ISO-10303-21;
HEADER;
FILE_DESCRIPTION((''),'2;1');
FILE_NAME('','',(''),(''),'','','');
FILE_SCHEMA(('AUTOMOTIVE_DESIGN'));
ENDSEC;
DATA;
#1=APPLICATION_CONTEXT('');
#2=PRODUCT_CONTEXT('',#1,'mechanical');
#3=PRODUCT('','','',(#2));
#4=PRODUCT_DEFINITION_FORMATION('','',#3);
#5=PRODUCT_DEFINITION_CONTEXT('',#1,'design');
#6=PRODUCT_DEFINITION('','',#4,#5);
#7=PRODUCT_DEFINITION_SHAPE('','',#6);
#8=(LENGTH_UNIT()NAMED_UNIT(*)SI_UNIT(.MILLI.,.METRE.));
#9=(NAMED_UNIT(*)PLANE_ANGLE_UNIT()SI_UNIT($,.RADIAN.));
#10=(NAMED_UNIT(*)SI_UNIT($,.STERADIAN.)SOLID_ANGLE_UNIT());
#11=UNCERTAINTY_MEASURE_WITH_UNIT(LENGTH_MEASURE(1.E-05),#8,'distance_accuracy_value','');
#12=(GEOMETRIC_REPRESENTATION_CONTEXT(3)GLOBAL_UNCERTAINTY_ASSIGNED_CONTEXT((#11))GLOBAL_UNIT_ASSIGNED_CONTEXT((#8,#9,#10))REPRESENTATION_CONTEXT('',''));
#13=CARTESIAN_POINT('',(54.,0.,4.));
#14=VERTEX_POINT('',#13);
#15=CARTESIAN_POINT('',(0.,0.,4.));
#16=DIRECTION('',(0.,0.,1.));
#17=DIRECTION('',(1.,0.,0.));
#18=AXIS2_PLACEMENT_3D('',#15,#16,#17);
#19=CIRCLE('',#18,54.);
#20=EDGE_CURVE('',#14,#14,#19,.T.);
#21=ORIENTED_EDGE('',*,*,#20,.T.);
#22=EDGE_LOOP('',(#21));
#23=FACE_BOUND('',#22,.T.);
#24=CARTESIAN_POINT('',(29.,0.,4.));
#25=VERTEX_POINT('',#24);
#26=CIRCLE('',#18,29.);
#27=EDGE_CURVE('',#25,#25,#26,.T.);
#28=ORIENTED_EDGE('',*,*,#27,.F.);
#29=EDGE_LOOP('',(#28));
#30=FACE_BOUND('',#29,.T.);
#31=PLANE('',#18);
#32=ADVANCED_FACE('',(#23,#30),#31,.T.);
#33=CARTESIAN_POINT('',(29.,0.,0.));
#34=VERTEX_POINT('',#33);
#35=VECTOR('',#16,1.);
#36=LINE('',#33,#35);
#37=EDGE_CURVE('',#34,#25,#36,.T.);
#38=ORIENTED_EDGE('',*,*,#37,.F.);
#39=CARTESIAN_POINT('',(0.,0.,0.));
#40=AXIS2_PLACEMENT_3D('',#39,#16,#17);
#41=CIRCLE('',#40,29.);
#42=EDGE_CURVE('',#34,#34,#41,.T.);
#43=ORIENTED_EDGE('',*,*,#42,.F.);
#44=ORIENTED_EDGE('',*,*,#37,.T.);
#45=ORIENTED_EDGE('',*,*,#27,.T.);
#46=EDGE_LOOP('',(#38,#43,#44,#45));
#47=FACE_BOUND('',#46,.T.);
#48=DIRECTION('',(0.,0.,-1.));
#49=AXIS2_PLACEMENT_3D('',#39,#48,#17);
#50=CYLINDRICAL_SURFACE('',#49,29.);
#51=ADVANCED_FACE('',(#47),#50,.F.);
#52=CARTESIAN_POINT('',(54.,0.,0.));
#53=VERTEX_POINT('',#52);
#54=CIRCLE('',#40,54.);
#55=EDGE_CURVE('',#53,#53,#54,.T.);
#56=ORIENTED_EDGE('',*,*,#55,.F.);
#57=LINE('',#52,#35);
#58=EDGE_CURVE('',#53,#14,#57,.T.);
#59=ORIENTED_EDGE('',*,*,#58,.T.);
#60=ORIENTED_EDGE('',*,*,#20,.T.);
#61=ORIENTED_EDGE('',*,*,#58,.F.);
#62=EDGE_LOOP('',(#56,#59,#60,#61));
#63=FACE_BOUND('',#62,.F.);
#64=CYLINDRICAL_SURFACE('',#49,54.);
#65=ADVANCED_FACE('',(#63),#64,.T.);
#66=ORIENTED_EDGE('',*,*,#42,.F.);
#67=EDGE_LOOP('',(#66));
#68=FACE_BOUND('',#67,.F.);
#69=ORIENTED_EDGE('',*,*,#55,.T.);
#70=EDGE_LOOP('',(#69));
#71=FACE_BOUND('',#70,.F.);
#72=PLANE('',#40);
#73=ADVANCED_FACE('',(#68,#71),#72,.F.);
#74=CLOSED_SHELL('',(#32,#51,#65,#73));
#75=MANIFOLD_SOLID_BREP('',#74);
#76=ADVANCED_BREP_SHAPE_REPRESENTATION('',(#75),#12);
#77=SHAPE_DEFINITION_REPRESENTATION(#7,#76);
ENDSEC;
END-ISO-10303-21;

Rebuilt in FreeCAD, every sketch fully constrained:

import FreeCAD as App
import Part
import Sketcher

V = App.Vector
Q = App.Units.Quantity

doc = App.newDocument("Part")
body = doc.addObject("PartDesign::Body", "Body")

# Sketch on XY plane
sketch1 = body.newObject("Sketcher::SketchObject", "Sketch")
sketch1.AttachmentSupport = (doc.getObject("XY_Plane"), [""])
sketch1.MapMode = "FlatFace"
sketch1.addGeometry(Part.Circle(V(0, 0, 0), V(0, 0, 1), 54), False)
sketch1.addGeometry(Part.Circle(V(0, 0, 0), V(0, 0, 1), 29), False)
sketch1.addConstraint(Sketcher.Constraint("Coincident", 0, 3, -1, 1))
sketch1.addConstraint(Sketcher.Constraint("Coincident", 1, 3, -1, 1))
sketch1.addConstraint(Sketcher.Constraint("Diameter", 0, Q("108 mm")))
sketch1.addConstraint(Sketcher.Constraint("Diameter", 1, Q("58 mm")))
pad1 = body.newObject("PartDesign::Pad", "Pad")
pad1.Profile = sketch1
pad1.Length = 4

doc.recompute()
